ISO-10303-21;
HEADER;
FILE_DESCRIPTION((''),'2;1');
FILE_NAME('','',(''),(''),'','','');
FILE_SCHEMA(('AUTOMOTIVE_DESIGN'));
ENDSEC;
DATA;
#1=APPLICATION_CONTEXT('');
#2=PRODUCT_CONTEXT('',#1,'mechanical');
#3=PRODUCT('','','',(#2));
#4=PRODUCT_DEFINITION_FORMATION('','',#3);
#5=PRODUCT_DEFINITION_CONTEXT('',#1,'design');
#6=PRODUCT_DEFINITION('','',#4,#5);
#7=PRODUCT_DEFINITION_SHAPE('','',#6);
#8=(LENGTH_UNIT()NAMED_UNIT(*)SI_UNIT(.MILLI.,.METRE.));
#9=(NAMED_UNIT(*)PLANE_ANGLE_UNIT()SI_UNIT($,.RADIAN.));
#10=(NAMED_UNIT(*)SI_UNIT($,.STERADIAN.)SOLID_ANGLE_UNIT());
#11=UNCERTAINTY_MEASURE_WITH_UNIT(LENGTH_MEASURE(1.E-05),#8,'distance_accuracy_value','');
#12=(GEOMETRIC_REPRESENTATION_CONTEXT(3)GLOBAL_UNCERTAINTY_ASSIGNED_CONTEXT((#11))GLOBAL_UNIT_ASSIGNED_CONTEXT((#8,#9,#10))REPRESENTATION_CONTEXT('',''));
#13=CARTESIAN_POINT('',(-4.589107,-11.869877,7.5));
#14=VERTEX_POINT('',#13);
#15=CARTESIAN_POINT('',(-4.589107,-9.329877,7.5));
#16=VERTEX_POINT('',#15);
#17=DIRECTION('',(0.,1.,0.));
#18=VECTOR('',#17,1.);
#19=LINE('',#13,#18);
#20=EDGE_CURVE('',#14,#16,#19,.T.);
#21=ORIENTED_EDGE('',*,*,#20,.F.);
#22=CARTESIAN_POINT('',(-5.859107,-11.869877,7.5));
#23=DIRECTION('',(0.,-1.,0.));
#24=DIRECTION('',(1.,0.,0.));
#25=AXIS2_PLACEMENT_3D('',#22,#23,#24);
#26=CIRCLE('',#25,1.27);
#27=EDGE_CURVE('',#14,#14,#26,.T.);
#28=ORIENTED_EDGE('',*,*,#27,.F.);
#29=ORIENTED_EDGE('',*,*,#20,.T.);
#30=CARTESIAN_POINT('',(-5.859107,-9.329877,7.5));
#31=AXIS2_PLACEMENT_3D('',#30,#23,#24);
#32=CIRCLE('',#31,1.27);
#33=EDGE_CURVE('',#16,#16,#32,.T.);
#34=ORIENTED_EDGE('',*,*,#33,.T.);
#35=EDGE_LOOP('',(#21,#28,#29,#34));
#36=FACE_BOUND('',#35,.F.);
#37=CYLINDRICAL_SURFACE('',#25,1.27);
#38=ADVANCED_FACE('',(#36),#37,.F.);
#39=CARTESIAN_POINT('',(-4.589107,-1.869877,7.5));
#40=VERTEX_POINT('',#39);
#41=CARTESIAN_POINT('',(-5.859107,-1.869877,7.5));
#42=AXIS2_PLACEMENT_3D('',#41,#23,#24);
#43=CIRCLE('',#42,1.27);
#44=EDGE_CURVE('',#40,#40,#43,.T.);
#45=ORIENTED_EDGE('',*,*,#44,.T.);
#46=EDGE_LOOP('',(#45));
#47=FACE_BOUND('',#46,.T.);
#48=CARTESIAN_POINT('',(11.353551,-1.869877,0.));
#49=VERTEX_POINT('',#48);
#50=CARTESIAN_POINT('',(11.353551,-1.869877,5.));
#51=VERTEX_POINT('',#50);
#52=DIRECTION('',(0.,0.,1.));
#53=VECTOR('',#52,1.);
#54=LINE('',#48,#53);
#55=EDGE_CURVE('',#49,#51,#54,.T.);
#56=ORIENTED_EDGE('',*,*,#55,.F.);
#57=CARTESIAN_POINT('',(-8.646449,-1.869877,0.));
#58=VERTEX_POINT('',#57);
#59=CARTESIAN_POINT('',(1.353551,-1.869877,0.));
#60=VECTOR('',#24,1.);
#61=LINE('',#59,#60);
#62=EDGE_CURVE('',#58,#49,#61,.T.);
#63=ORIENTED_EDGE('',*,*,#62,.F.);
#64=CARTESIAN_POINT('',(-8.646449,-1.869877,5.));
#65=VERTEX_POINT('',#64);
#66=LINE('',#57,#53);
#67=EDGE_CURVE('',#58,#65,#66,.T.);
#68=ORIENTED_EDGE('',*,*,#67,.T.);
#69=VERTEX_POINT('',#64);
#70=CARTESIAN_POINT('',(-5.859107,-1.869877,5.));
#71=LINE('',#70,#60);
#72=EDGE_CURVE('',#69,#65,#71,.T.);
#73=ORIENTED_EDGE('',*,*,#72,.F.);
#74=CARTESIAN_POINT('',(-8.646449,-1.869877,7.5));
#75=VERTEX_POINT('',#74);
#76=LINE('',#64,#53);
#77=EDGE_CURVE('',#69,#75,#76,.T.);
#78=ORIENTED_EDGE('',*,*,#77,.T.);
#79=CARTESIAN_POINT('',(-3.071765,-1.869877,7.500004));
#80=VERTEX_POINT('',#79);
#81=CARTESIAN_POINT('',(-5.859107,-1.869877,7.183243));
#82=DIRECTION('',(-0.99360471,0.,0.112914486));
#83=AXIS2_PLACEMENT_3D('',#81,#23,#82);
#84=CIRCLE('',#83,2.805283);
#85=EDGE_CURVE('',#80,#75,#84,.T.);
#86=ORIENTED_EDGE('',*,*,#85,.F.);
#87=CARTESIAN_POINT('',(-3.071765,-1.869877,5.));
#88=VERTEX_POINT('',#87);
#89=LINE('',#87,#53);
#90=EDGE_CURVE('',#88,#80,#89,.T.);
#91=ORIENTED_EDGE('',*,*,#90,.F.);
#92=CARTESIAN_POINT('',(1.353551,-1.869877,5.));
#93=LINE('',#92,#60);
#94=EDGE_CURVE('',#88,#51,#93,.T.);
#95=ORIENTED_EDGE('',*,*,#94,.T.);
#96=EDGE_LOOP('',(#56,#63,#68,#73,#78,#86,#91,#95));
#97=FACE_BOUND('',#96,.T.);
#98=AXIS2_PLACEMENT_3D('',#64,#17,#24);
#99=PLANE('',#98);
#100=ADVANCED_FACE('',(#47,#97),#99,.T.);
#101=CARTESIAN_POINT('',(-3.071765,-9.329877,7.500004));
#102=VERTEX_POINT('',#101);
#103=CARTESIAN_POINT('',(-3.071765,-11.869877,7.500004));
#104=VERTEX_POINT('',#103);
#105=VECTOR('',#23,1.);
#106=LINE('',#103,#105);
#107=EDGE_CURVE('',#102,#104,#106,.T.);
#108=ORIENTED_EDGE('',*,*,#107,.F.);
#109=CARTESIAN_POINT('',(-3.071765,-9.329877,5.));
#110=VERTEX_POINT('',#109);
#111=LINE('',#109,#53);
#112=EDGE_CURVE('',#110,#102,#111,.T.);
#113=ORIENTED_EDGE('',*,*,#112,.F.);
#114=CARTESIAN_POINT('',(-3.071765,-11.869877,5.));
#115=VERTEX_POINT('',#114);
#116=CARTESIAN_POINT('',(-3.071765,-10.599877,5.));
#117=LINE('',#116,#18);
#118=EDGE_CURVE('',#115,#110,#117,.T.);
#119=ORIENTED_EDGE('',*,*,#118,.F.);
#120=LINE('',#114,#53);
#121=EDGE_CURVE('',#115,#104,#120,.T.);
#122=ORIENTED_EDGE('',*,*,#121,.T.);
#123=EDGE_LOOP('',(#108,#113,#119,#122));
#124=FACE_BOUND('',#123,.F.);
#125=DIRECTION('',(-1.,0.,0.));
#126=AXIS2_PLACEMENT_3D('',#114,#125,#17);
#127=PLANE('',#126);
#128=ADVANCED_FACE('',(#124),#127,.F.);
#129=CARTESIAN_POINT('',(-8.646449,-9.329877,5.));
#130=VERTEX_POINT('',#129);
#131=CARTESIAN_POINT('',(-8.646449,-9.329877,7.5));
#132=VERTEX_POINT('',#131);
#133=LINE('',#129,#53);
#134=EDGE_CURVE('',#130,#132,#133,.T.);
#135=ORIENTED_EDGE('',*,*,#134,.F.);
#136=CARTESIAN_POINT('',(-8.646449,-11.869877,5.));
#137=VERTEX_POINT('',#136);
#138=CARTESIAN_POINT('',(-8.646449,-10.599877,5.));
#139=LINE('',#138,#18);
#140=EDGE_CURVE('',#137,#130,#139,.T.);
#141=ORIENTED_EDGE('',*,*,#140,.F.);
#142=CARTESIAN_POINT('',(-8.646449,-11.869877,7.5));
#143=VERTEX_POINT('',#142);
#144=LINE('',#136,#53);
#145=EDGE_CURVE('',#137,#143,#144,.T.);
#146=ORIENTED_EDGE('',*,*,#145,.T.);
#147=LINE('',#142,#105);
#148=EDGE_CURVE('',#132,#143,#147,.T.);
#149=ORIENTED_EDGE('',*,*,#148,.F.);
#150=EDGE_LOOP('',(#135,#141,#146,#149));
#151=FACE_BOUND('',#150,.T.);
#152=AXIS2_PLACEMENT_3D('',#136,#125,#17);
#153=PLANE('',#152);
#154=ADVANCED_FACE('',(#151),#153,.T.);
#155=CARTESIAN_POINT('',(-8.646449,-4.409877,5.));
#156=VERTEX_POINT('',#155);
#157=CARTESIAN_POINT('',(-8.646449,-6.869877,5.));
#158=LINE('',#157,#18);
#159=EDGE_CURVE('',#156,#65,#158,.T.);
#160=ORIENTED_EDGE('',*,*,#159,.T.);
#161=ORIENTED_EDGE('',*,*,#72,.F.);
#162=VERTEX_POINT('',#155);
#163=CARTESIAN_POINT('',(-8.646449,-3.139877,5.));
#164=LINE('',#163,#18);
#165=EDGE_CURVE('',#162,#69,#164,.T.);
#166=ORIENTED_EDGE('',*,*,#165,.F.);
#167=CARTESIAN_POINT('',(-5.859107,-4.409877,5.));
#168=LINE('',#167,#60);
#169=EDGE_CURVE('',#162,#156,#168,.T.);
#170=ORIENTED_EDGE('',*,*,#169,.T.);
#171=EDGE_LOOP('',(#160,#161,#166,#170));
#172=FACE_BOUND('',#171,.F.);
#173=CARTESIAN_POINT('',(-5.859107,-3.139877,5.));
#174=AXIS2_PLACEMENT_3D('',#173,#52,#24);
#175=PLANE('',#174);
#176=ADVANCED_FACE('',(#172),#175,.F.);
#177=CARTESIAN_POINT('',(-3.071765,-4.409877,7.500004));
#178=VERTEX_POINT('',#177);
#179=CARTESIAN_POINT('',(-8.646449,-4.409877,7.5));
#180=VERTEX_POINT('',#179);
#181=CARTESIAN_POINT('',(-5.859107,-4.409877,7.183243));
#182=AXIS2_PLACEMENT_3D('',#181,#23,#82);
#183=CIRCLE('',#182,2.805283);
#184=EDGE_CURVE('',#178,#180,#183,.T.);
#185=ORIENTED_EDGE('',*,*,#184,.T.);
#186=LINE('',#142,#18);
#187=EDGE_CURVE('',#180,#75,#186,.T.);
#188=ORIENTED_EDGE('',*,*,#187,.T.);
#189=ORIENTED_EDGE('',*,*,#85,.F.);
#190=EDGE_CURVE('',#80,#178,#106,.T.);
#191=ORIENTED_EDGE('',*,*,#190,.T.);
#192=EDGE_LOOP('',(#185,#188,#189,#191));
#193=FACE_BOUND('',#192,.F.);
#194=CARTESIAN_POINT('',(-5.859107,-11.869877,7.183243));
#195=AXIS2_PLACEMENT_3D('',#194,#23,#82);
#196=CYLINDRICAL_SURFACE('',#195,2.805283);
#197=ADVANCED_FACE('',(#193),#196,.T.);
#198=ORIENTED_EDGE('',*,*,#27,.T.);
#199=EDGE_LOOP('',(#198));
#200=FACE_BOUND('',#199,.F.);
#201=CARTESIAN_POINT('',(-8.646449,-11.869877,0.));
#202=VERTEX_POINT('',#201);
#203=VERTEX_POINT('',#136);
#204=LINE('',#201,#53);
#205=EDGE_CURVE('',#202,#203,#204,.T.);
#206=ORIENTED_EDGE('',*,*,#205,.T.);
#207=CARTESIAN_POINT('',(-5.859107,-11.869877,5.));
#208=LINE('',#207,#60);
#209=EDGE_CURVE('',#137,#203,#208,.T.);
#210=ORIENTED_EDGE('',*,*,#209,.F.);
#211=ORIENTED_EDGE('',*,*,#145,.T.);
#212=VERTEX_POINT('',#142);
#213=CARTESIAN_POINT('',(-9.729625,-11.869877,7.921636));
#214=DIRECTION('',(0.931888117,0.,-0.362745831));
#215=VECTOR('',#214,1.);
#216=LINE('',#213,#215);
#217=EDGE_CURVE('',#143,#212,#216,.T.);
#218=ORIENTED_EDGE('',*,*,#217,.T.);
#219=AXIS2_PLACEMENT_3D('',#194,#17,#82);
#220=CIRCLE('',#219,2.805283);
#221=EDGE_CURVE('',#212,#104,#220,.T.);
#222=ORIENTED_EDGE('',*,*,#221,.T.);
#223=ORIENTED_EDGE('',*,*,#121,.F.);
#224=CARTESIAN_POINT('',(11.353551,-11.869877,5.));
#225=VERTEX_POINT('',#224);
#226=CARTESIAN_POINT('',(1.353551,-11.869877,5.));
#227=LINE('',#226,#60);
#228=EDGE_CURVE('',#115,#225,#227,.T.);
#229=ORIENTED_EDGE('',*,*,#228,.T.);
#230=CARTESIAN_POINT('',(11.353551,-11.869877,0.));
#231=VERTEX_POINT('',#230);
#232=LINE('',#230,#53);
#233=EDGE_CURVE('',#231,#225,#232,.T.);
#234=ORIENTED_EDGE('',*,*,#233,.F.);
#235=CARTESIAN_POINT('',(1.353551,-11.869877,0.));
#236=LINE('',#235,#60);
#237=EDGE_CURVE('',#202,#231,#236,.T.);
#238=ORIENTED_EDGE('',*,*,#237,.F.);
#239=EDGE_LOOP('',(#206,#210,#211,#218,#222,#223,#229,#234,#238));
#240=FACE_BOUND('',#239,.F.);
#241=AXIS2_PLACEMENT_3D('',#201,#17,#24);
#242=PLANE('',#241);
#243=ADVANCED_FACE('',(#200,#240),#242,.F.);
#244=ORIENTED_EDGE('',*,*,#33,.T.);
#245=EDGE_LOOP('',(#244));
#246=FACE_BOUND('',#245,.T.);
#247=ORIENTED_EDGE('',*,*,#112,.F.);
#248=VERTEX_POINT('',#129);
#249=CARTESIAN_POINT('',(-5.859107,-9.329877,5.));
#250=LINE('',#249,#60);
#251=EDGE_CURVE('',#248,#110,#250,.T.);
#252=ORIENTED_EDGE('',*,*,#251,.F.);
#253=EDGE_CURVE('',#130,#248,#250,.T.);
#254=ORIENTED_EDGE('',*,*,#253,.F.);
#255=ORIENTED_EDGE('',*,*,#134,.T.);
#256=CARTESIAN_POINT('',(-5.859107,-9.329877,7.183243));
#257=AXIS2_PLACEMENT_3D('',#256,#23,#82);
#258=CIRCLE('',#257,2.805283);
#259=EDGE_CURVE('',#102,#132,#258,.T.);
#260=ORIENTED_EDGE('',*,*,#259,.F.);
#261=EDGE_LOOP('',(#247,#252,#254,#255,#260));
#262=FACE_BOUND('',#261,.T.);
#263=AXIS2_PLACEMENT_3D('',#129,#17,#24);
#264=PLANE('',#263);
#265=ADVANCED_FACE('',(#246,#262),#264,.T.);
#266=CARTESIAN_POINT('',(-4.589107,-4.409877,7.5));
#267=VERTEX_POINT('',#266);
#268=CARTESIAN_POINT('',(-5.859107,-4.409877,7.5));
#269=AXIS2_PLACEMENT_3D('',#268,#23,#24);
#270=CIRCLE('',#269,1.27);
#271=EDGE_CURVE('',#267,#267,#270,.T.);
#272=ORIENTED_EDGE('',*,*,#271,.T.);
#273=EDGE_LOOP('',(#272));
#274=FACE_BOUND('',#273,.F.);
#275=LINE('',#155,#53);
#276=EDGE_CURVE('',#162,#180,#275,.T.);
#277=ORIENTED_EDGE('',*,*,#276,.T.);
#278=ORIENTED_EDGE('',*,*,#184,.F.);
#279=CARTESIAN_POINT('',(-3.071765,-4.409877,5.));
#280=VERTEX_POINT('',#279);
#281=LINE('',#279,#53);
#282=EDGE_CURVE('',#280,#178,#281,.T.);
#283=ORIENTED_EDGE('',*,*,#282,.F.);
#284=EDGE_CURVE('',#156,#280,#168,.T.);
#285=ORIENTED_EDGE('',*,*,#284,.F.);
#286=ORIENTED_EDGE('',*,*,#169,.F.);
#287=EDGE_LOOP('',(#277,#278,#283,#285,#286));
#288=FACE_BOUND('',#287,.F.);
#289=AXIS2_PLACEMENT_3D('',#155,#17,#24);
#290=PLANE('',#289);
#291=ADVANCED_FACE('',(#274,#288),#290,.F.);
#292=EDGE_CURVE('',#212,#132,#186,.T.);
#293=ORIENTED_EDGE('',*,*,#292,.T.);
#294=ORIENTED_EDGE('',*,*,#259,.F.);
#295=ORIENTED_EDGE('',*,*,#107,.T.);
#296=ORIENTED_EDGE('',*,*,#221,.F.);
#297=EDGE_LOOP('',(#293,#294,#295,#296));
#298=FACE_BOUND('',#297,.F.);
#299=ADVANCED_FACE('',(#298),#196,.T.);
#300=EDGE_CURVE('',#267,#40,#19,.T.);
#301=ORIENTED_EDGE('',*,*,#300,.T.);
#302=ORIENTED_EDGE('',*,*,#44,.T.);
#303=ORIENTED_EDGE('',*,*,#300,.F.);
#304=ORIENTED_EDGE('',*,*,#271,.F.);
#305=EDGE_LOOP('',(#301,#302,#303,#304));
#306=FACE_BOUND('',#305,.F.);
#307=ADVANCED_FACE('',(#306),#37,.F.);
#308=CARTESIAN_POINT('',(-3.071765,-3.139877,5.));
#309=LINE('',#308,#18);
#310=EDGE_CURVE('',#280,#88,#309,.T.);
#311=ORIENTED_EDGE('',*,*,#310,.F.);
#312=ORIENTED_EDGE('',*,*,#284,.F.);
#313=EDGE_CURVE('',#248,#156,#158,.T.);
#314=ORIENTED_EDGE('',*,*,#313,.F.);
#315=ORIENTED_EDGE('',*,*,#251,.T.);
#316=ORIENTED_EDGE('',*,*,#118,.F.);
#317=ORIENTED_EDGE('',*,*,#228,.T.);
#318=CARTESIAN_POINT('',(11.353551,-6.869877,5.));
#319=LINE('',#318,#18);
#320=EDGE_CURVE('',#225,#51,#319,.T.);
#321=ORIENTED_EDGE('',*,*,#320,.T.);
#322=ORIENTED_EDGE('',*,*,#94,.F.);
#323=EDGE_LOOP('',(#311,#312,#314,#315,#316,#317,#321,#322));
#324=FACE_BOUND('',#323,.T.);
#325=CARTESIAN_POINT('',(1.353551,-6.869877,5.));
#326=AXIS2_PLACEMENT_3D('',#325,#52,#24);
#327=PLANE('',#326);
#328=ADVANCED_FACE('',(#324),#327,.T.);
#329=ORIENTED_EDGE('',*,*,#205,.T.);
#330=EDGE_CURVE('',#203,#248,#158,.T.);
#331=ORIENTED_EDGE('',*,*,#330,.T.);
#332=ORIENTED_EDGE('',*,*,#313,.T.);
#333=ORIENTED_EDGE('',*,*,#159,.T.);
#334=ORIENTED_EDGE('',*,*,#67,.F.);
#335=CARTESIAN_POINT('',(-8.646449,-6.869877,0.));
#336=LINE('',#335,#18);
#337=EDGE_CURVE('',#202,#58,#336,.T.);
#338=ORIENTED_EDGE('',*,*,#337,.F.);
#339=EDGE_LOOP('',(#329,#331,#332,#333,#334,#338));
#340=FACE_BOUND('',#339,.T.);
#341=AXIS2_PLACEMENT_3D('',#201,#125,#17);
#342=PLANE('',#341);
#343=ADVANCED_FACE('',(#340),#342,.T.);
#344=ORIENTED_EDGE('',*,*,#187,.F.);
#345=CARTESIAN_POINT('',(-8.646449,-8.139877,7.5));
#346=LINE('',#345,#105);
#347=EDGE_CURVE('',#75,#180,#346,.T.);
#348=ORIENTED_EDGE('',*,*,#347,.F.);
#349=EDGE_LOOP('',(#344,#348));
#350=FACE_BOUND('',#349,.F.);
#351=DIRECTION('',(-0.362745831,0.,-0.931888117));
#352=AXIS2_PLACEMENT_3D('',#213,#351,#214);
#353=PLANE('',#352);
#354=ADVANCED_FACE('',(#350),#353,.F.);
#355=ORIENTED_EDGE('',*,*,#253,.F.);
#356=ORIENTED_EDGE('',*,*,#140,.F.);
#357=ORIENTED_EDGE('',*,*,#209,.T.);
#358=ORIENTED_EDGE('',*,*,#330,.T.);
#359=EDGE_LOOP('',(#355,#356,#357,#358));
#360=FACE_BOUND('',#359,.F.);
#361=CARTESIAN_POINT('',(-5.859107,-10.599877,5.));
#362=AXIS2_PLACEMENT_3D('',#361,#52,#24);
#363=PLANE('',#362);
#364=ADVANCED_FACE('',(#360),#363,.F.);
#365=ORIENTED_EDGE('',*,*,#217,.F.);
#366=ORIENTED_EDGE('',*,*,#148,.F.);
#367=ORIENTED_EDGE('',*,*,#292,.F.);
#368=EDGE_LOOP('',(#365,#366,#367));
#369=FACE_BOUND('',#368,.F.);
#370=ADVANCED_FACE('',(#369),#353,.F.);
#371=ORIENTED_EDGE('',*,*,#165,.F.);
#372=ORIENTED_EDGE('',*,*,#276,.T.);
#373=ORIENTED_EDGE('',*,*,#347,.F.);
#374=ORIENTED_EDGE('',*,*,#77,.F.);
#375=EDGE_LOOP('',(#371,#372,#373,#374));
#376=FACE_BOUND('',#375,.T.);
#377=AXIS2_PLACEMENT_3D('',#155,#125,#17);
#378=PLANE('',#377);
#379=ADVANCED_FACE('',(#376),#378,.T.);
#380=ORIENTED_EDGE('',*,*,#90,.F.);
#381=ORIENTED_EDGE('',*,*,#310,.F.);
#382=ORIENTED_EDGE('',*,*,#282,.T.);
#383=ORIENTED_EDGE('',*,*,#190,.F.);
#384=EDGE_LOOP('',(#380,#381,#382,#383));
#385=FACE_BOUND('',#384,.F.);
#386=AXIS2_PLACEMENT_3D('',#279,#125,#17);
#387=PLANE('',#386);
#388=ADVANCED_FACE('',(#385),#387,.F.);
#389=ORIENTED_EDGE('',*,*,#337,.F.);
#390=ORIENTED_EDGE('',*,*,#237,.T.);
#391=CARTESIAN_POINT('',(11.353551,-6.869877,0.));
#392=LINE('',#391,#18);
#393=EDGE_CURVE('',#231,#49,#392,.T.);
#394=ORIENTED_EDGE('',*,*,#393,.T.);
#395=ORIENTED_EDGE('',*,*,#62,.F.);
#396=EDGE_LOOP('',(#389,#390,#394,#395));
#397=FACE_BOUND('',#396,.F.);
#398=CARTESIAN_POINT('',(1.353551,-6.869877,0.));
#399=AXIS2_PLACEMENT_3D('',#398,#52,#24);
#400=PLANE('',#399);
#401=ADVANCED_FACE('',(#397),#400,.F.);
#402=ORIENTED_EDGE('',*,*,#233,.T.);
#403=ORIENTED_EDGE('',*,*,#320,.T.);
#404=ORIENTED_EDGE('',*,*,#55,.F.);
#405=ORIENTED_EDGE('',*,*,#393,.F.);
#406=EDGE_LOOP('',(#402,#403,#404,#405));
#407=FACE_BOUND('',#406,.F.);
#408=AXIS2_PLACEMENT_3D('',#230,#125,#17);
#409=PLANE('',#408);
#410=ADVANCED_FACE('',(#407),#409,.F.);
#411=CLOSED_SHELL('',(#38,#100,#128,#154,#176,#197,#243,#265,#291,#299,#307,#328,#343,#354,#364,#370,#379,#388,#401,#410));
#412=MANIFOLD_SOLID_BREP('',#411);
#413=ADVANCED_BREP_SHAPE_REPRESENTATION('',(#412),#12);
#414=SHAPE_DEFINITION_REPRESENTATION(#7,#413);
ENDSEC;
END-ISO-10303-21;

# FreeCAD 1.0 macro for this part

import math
import FreeCAD as App
import Part
import Sketcher
from FreeCAD import Vector
Q = App.Units.Quantity

doc = App.newDocument("Part")
body = doc.addObject("PartDesign::Body", "Body")

sketch1 = body.newObject("Sketcher::SketchObject", "Sketch")
sketch1.AttachmentSupport = (doc.getObject("XY_Plane"), [""])
sketch1.MapMode = "FlatFace"
sketch1.addGeometry([
    Part.LineSegment(Vector(-9, -2, 0), Vector(-9, -12, 0)),
    Part.LineSegment(Vector(-9, -12, 0), Vector(11, -12, 0)),
    Part.LineSegment(Vector(11, -12, 0), Vector(11, -2, 0)),
    Part.LineSegment(Vector(11, -2, 0), Vector(-9, -2, 0)),
], False)
sketch1.addConstraint([
    Sketcher.Constraint("Coincident", 0, 2, 1, 1),
    Sketcher.Constraint("Coincident", 1, 2, 2, 1),
    Sketcher.Constraint("Coincident", 2, 2, 3, 1),
    Sketcher.Constraint("Coincident", 3, 2, 0, 1),
    Sketcher.Constraint("Vertical", 0),
    Sketcher.Constraint("Horizontal", 1),
    Sketcher.Constraint("Vertical", 2),
    Sketcher.Constraint("Horizontal", 3),
    Sketcher.Constraint("DistanceX", 1, 1, 1, 2, Q("20 mm")),
    Sketcher.Constraint("DistanceY", 0, 2, 0, 1, Q("10 mm")),
    Sketcher.Constraint("DistanceX", 0, 2, -1, 1, Q("8.646449 mm")),
    Sketcher.Constraint("DistanceY", 0, 2, -1, 1, Q("11.869877 mm")),
])
pad1 = body.newObject("PartDesign::Pad", "Pad")
pad1.Profile = sketch1
pad1.Length = 5

sketch2 = body.newObject("Sketcher::SketchObject", "Sketch001")
sketch2.AttachmentSupport = (doc.getObject("XY_Plane"), [""])
sketch2.MapMode = "FlatFace"
sketch2.AttachmentOffset = App.Placement(Vector(0, 0, 5), App.Rotation())
sketch2.addGeometry([
    Part.LineSegment(Vector(-8.6, -1.9, 0), Vector(-8.6, -4.4, 0)),
    Part.LineSegment(Vector(-8.6, -4.4, 0), Vector(-3.1, -4.4, 0)),
    Part.LineSegment(Vector(-3.1, -4.4, 0), Vector(-3.1, -1.9, 0)),
    Part.LineSegment(Vector(-3.1, -1.9, 0), Vector(-8.6, -1.9, 0)),
    Part.LineSegment(Vector(-8.6, -9.3, 0), Vector(-8.6, -11.9, 0)),
    Part.LineSegment(Vector(-8.6, -11.9, 0), Vector(-3.1, -11.9, 0)),
    Part.LineSegment(Vector(-3.1, -11.9, 0), Vector(-3.1, -9.3, 0)),
    Part.LineSegment(Vector(-3.1, -9.3, 0), Vector(-8.6, -9.3, 0)),
], False)
sketch2.addConstraint([
    Sketcher.Constraint("Coincident", 0, 2, 1, 1),
    Sketcher.Constraint("Coincident", 1, 2, 2, 1),
    Sketcher.Constraint("Coincident", 2, 2, 3, 1),
    Sketcher.Constraint("Coincident", 3, 2, 0, 1),
    Sketcher.Constraint("Coincident", 4, 2, 5, 1),
    Sketcher.Constraint("Coincident", 5, 2, 6, 1),
    Sketcher.Constraint("Coincident", 6, 2, 7, 1),
    Sketcher.Constraint("Coincident", 7, 2, 4, 1),
    Sketcher.Constraint("Vertical", 0),
    Sketcher.Constraint("Horizontal", 1),
    Sketcher.Constraint("Vertical", 2),
    Sketcher.Constraint("Horizontal", 3),
    Sketcher.Constraint("Vertical", 4),
    Sketcher.Constraint("Horizontal", 5),
    Sketcher.Constraint("Vertical", 6),
    Sketcher.Constraint("Horizontal", 7),
    Sketcher.Constraint("Vertical", 3, 2, 4, 2),
    Sketcher.Constraint("Vertical", 2, 2, 5, 2),
    Sketcher.Constraint("Equal", 2, 4),
    Sketcher.Constraint("DistanceY", 4, 2, 3, 2, Q("10 mm")),
    Sketcher.Constraint("DistanceY", 0, 2, 0, 1, Q("2.54 mm")),
    Sketcher.Constraint("DistanceX", 1, 1, 1, 2, Q("5.574685 mm")),
    Sketcher.Constraint("DistanceX", 0, 2, -1, 1, Q("8.646449 mm")),
    Sketcher.Constraint("DistanceY", 0, 2, -1, 1, Q("4.409877 mm")),
])
pad2 = body.newObject("PartDesign::Pad", "Pad001")
pad2.Profile = sketch2
pad2.Length = 5

sketch3 = body.newObject("Sketcher::SketchObject", "Sketch002")
sketch3.AttachmentSupport = (doc.getObject("XZ_Plane"), [""])
sketch3.MapMode = "FlatFace"
sketch3.AttachmentOffset = App.Placement(Vector(0, 0, 11.869877), App.Rotation())
sketch3.addGeometry([
    Part.LineSegment(Vector(-3.1, 7.5, 0), Vector(-2.4, 7.5, 0)),
    Part.LineSegment(Vector(-2.4, 7.5, 0), Vector(-2.4, 10.9, 0)),
    Part.LineSegment(Vector(-2.4, 10.9, 0), Vector(-9.3, 10.9, 0)),
    Part.LineSegment(Vector(-9.3, 10.9, 0), Vector(-9.7, 7.9, 0)),
    Part.LineSegment(Vector(-9.7, 7.9, 0), Vector(-8.6, 7.5, 0)),
    Part.ArcOfCircle(Part.Circle(Vector(-5.9, 7.2, 0), Vector(0, 0, 1), 2.8), math.radians(6), math.radians(174)),
], False)
sketch3.addConstraint([
    Sketcher.Constraint("Coincident", 0, 2, 1, 1),
    Sketcher.Constraint("Coincident", 1, 2, 2, 1),
    Sketcher.Constraint("Coincident", 2, 2, 3, 1),
    Sketcher.Constraint("Coincident", 3, 2, 4, 1),
    Sketcher.Constraint("Coincident", 4, 2, 5, 2),
    Sketcher.Constraint("Coincident", 5, 1, 0, 1),
    Sketcher.Constraint("Horizontal", 0),
    Sketcher.Constraint("Vertical", 1),
    Sketcher.Constraint("Horizontal", 2),
    Sketcher.Constraint("Horizontal", 0, 2, 4, 2),
    Sketcher.Constraint("DistanceY", -1, 1, 0, 2, Q("7.5 mm")),
    Sketcher.Constraint("Radius", 5, Q("2.805283 mm")),
    Sketcher.Constraint("DistanceX", 2, 2, 2, 1, Q("6.841031 mm")),
    Sketcher.Constraint("DistanceX", 0, 1, 0, 2, Q("0.652653 mm")),
    Sketcher.Constraint("DistanceY", 1, 1, 1, 2, Q("3.395025 mm")),
    Sketcher.Constraint("DistanceX", 0, 2, -1, 1, Q("2.419111 mm")),
    Sketcher.Constraint("DistanceX", 4, 2, -1, 1, Q("8.646449 mm")),
    Sketcher.Constraint("DistanceY", 3, 2, 2, 2, Q("2.973389 mm")),
    Sketcher.Constraint("DistanceX", 3, 2, 5, 3, Q("3.870519 mm")),
])
pocket1 = body.newObject("PartDesign::Pocket", "Pocket")
pocket1.Profile = sketch3
pocket1.Type = "ThroughAll"

sketch4 = body.newObject("Sketcher::SketchObject", "Sketch003")
sketch4.AttachmentSupport = (doc.getObject("XZ_Plane"), [""])
sketch4.MapMode = "FlatFace"
sketch4.AttachmentOffset = App.Placement(Vector(0, 0, 11.869877), App.Rotation())
sketch4.addGeometry(Part.Circle(Vector(-5.9, 7.5, 0), Vector(0, 0, 1), 1.3), False)
sketch4.addConstraint([
    Sketcher.Constraint("Diameter", 0, Q("2.54 mm")),
    Sketcher.Constraint("DistanceY", -1, 1, 0, 3, Q("7.5 mm")),
    Sketcher.Constraint("DistanceX", 0, 3, -1, 1, Q("5.859107 mm")),
])
pocket2 = body.newObject("PartDesign::Pocket", "Pocket001")
pocket2.Profile = sketch4
pocket2.Type = "ThroughAll"

doc.recompute()
